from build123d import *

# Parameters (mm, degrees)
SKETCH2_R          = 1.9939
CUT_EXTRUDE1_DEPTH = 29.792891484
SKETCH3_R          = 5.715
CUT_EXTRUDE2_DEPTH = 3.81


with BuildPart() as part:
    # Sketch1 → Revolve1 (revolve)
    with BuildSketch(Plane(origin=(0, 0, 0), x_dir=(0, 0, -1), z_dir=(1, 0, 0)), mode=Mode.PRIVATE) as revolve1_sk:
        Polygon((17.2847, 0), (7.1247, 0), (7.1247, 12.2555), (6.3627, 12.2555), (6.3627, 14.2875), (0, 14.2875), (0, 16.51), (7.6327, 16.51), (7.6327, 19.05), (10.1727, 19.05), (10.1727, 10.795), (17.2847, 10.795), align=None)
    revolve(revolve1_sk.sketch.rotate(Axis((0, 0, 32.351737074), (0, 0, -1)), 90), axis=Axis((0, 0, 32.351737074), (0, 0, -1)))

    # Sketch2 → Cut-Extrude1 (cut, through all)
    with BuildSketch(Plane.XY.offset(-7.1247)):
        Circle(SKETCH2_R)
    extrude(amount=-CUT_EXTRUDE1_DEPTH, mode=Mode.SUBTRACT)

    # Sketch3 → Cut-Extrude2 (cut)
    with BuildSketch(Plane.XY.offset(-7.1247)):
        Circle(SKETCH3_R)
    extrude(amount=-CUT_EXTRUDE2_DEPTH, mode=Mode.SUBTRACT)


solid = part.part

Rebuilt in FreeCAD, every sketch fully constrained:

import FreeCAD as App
import Part
import Sketcher

V = App.Vector
Q = App.Units.Quantity

doc = App.newDocument("Part")
params = doc.addObject("Spreadsheet::Sheet", "Params")
for row, (alias, value) in enumerate([
    ("sketch1_width", "0.1 in"),
    ("sketch1_height", "0.4 in"),
    ("sketch1_width2", "0.08 in"),
    ("sketch1_height2", "0.28 in"),
    ("sketch1_height3", "0.03 in"),
    ("revolution_angle", "360 deg"),
    ("sketch2_diameter", "0.157 in"),
    ("sketch3_diameter", "0.45 in"),
    ("pocket2_length", "0.15 in"),
], start=1):
    params.set(f"A{row}", alias)
    params.set(f"B{row}", "=" + value)
    params.setAlias(f"B{row}", alias)

body = doc.addObject("PartDesign::Body", "Body")

# Sketch on YZ plane
sketch1 = body.newObject("Sketcher::SketchObject", "Sketch")
sketch1.AttachmentSupport = (doc.getObject("YZ_Plane"), [""])
sketch1.MapMode = "FlatFace"
sketch1.addGeometry(Part.LineSegment(V(0, -7.1247, 0), V(0, -17.2847, 0)), False)
sketch1.addGeometry(Part.LineSegment(V(0, -17.2847, 0), V(10.795, -17.2847, 0)), False)
sketch1.addGeometry(Part.LineSegment(V(10.795, -17.2847, 0), V(10.795, -10.1727, 0)), False)
sketch1.addGeometry(Part.LineSegment(V(10.795, -10.1727, 0), V(19.05, -10.1727, 0)), False)
sketch1.addGeometry(Part.LineSegment(V(19.05, -10.1727, 0), V(19.05, -7.6327, 0)), False)
sketch1.addGeometry(Part.LineSegment(V(19.05, -7.6327, 0), V(16.51, -7.6327, 0)), False)
sketch1.addGeometry(Part.LineSegment(V(16.51, -7.6327, 0), V(16.51, 0, 0)), False)
sketch1.addGeometry(Part.LineSegment(V(16.51, 0, 0), V(14.2875, 0, 0)), False)
sketch1.addGeometry(Part.LineSegment(V(14.2875, 0, 0), V(14.2875, -6.3627, 0)), False)
sketch1.addGeometry(Part.LineSegment(V(14.2875, -6.3627, 0), V(12.2555, -6.3627, 0)), False)
sketch1.addGeometry(Part.LineSegment(V(12.2555, -6.3627, 0), V(12.2555, -7.1247, 0)), False)
sketch1.addGeometry(Part.LineSegment(V(12.2555, -7.1247, 0), V(0, -7.1247, 0)), False)
sketch1.addConstraint(Sketcher.Constraint("Coincident", 0, 2, 1, 1))
sketch1.addConstraint(Sketcher.Constraint("Coincident", 1, 2, 2, 1))
sketch1.addConstraint(Sketcher.Constraint("Coincident", 2, 2, 3, 1))
sketch1.addConstraint(Sketcher.Constraint("Coincident", 3, 2, 4, 1))
sketch1.addConstraint(Sketcher.Constraint("Coincident", 4, 2, 5, 1))
sketch1.addConstraint(Sketcher.Constraint("Coincident", 5, 2, 6, 1))
sketch1.addConstraint(Sketcher.Constraint("Coincident", 6, 2, 7, 1))
sketch1.addConstraint(Sketcher.Constraint("Coincident", 7, 2, 8, 1))
sketch1.addConstraint(Sketcher.Constraint("Coincident", 8, 2, 9, 1))
sketch1.addConstraint(Sketcher.Constraint("Coincident", 9, 2, 10, 1))
sketch1.addConstraint(Sketcher.Constraint("Coincident", 10, 2, 11, 1))
sketch1.addConstraint(Sketcher.Constraint("Coincident", 11, 2, 0, 1))
sketch1.addConstraint(Sketcher.Constraint("Vertical", 0))
sketch1.addConstraint(Sketcher.Constraint("Horizontal", 1))
sketch1.addConstraint(Sketcher.Constraint("Vertical", 2))
sketch1.addConstraint(Sketcher.Constraint("Horizontal", 3))
sketch1.addConstraint(Sketcher.Constraint("Vertical", 4))
sketch1.addConstraint(Sketcher.Constraint("Horizontal", 5))
sketch1.addConstraint(Sketcher.Constraint("Vertical", 6))
sketch1.addConstraint(Sketcher.Constraint("Horizontal", 7))
sketch1.addConstraint(Sketcher.Constraint("Vertical", 8))
sketch1.addConstraint(Sketcher.Constraint("Horizontal", 9))
sketch1.addConstraint(Sketcher.Constraint("Vertical", 10))
sketch1.addConstraint(Sketcher.Constraint("Horizontal", 11))
sketch1.addConstraint(Sketcher.Constraint("PointOnObject", 0, 2, -2))
sketch1.addConstraint(Sketcher.Constraint("PointOnObject", 6, 2, -1))
sketch1.addConstraint(Sketcher.Constraint("Equal", 5, 4))
sketch1.addConstraint(Sketcher.Constraint("DistanceX", 5, 2, 5, 1, Q("0.1 in")))
sketch1.addConstraint(Sketcher.Constraint("DistanceY", 0, 2, 0, 1, Q("0.4 in")))
sketch1.addConstraint(Sketcher.Constraint("DistanceX", 9, 2, 9, 1, Q("0.08 in")))
sketch1.addConstraint(Sketcher.Constraint("DistanceY", 2, 1, 2, 2, Q("0.28 in")))
sketch1.addConstraint(Sketcher.Constraint("DistanceY", 10, 2, 10, 1, Q("0.03 in")))
sketch1.addConstraint(Sketcher.Constraint("DistanceX", 1, 1, 1, 2, Q("0.425 in")))
sketch1.addConstraint(Sketcher.Constraint("DistanceX", 3, 1, 3, 2, Q("0.325 in")))
sketch1.addConstraint(Sketcher.Constraint("DistanceX", 7, 2, 7, 1, Q("0.0875 in")))
sketch1.addConstraint(Sketcher.Constraint("DistanceY", 6, 1, 6, 2, Q("0.3005 in")))
sketch1.setExpression("Constraints[27]", "Params.sketch1_width")
sketch1.setExpression("Constraints[28]", "Params.sketch1_height")
sketch1.setExpression("Constraints[29]", "Params.sketch1_width2")
sketch1.setExpression("Constraints[30]", "Params.sketch1_height2")
sketch1.setExpression("Constraints[31]", "Params.sketch1_height3")
revolution = body.newObject("PartDesign::Revolution", "Revolution")
revolution.Profile = sketch1
revolution.ReferenceAxis = (sketch1, ["V_Axis"])
revolution.setExpression("Angle", "Params.revolution_angle")

# Sketch on XY plane
sketch2 = body.newObject("Sketcher::SketchObject", "Sketch001")
sketch2.AttachmentSupport = (doc.getObject("XY_Plane"), [""])
sketch2.MapMode = "FlatFace"
sketch2.AttachmentOffset = App.Placement(V(0, 0, -0.2805 * 25.4), App.Rotation())
sketch2.addGeometry(Part.Circle(V(0, 0, 0), V(0, 0, 1), 1.9939), False)
sketch2.addConstraint(Sketcher.Constraint("Coincident", 0, 3, -1, 1))
sketch2.addConstraint(Sketcher.Constraint("Diameter", 0, Q("0.157 in")))
sketch2.setExpression("Constraints[1]", "Params.sketch2_diameter")
pocket1 = body.newObject("PartDesign::Pocket", "Pocket")
pocket1.Profile = sketch2
pocket1.Type = "ThroughAll"

# Sketch on XY plane
sketch3 = body.newObject("Sketcher::SketchObject", "Sketch002")
sketch3.AttachmentSupport = (doc.getObject("XY_Plane"), [""])
sketch3.MapMode = "FlatFace"
sketch3.AttachmentOffset = App.Placement(V(0, 0, -0.2805 * 25.4), App.Rotation())
sketch3.addGeometry(Part.Circle(V(0, 0, 0), V(0, 0, 1), 5.715), False)
sketch3.addConstraint(Sketcher.Constraint("Coincident", 0, 3, -1, 1))
sketch3.addConstraint(Sketcher.Constraint("Diameter", 0, Q("0.45 in")))
sketch3.setExpression("Constraints[1]", "Params.sketch3_diameter")
pocket2 = body.newObject("PartDesign::Pocket", "Pocket001")
pocket2.Profile = sketch3
pocket2.setExpression("Length", "Params.pocket2_length")

doc.recompute()
